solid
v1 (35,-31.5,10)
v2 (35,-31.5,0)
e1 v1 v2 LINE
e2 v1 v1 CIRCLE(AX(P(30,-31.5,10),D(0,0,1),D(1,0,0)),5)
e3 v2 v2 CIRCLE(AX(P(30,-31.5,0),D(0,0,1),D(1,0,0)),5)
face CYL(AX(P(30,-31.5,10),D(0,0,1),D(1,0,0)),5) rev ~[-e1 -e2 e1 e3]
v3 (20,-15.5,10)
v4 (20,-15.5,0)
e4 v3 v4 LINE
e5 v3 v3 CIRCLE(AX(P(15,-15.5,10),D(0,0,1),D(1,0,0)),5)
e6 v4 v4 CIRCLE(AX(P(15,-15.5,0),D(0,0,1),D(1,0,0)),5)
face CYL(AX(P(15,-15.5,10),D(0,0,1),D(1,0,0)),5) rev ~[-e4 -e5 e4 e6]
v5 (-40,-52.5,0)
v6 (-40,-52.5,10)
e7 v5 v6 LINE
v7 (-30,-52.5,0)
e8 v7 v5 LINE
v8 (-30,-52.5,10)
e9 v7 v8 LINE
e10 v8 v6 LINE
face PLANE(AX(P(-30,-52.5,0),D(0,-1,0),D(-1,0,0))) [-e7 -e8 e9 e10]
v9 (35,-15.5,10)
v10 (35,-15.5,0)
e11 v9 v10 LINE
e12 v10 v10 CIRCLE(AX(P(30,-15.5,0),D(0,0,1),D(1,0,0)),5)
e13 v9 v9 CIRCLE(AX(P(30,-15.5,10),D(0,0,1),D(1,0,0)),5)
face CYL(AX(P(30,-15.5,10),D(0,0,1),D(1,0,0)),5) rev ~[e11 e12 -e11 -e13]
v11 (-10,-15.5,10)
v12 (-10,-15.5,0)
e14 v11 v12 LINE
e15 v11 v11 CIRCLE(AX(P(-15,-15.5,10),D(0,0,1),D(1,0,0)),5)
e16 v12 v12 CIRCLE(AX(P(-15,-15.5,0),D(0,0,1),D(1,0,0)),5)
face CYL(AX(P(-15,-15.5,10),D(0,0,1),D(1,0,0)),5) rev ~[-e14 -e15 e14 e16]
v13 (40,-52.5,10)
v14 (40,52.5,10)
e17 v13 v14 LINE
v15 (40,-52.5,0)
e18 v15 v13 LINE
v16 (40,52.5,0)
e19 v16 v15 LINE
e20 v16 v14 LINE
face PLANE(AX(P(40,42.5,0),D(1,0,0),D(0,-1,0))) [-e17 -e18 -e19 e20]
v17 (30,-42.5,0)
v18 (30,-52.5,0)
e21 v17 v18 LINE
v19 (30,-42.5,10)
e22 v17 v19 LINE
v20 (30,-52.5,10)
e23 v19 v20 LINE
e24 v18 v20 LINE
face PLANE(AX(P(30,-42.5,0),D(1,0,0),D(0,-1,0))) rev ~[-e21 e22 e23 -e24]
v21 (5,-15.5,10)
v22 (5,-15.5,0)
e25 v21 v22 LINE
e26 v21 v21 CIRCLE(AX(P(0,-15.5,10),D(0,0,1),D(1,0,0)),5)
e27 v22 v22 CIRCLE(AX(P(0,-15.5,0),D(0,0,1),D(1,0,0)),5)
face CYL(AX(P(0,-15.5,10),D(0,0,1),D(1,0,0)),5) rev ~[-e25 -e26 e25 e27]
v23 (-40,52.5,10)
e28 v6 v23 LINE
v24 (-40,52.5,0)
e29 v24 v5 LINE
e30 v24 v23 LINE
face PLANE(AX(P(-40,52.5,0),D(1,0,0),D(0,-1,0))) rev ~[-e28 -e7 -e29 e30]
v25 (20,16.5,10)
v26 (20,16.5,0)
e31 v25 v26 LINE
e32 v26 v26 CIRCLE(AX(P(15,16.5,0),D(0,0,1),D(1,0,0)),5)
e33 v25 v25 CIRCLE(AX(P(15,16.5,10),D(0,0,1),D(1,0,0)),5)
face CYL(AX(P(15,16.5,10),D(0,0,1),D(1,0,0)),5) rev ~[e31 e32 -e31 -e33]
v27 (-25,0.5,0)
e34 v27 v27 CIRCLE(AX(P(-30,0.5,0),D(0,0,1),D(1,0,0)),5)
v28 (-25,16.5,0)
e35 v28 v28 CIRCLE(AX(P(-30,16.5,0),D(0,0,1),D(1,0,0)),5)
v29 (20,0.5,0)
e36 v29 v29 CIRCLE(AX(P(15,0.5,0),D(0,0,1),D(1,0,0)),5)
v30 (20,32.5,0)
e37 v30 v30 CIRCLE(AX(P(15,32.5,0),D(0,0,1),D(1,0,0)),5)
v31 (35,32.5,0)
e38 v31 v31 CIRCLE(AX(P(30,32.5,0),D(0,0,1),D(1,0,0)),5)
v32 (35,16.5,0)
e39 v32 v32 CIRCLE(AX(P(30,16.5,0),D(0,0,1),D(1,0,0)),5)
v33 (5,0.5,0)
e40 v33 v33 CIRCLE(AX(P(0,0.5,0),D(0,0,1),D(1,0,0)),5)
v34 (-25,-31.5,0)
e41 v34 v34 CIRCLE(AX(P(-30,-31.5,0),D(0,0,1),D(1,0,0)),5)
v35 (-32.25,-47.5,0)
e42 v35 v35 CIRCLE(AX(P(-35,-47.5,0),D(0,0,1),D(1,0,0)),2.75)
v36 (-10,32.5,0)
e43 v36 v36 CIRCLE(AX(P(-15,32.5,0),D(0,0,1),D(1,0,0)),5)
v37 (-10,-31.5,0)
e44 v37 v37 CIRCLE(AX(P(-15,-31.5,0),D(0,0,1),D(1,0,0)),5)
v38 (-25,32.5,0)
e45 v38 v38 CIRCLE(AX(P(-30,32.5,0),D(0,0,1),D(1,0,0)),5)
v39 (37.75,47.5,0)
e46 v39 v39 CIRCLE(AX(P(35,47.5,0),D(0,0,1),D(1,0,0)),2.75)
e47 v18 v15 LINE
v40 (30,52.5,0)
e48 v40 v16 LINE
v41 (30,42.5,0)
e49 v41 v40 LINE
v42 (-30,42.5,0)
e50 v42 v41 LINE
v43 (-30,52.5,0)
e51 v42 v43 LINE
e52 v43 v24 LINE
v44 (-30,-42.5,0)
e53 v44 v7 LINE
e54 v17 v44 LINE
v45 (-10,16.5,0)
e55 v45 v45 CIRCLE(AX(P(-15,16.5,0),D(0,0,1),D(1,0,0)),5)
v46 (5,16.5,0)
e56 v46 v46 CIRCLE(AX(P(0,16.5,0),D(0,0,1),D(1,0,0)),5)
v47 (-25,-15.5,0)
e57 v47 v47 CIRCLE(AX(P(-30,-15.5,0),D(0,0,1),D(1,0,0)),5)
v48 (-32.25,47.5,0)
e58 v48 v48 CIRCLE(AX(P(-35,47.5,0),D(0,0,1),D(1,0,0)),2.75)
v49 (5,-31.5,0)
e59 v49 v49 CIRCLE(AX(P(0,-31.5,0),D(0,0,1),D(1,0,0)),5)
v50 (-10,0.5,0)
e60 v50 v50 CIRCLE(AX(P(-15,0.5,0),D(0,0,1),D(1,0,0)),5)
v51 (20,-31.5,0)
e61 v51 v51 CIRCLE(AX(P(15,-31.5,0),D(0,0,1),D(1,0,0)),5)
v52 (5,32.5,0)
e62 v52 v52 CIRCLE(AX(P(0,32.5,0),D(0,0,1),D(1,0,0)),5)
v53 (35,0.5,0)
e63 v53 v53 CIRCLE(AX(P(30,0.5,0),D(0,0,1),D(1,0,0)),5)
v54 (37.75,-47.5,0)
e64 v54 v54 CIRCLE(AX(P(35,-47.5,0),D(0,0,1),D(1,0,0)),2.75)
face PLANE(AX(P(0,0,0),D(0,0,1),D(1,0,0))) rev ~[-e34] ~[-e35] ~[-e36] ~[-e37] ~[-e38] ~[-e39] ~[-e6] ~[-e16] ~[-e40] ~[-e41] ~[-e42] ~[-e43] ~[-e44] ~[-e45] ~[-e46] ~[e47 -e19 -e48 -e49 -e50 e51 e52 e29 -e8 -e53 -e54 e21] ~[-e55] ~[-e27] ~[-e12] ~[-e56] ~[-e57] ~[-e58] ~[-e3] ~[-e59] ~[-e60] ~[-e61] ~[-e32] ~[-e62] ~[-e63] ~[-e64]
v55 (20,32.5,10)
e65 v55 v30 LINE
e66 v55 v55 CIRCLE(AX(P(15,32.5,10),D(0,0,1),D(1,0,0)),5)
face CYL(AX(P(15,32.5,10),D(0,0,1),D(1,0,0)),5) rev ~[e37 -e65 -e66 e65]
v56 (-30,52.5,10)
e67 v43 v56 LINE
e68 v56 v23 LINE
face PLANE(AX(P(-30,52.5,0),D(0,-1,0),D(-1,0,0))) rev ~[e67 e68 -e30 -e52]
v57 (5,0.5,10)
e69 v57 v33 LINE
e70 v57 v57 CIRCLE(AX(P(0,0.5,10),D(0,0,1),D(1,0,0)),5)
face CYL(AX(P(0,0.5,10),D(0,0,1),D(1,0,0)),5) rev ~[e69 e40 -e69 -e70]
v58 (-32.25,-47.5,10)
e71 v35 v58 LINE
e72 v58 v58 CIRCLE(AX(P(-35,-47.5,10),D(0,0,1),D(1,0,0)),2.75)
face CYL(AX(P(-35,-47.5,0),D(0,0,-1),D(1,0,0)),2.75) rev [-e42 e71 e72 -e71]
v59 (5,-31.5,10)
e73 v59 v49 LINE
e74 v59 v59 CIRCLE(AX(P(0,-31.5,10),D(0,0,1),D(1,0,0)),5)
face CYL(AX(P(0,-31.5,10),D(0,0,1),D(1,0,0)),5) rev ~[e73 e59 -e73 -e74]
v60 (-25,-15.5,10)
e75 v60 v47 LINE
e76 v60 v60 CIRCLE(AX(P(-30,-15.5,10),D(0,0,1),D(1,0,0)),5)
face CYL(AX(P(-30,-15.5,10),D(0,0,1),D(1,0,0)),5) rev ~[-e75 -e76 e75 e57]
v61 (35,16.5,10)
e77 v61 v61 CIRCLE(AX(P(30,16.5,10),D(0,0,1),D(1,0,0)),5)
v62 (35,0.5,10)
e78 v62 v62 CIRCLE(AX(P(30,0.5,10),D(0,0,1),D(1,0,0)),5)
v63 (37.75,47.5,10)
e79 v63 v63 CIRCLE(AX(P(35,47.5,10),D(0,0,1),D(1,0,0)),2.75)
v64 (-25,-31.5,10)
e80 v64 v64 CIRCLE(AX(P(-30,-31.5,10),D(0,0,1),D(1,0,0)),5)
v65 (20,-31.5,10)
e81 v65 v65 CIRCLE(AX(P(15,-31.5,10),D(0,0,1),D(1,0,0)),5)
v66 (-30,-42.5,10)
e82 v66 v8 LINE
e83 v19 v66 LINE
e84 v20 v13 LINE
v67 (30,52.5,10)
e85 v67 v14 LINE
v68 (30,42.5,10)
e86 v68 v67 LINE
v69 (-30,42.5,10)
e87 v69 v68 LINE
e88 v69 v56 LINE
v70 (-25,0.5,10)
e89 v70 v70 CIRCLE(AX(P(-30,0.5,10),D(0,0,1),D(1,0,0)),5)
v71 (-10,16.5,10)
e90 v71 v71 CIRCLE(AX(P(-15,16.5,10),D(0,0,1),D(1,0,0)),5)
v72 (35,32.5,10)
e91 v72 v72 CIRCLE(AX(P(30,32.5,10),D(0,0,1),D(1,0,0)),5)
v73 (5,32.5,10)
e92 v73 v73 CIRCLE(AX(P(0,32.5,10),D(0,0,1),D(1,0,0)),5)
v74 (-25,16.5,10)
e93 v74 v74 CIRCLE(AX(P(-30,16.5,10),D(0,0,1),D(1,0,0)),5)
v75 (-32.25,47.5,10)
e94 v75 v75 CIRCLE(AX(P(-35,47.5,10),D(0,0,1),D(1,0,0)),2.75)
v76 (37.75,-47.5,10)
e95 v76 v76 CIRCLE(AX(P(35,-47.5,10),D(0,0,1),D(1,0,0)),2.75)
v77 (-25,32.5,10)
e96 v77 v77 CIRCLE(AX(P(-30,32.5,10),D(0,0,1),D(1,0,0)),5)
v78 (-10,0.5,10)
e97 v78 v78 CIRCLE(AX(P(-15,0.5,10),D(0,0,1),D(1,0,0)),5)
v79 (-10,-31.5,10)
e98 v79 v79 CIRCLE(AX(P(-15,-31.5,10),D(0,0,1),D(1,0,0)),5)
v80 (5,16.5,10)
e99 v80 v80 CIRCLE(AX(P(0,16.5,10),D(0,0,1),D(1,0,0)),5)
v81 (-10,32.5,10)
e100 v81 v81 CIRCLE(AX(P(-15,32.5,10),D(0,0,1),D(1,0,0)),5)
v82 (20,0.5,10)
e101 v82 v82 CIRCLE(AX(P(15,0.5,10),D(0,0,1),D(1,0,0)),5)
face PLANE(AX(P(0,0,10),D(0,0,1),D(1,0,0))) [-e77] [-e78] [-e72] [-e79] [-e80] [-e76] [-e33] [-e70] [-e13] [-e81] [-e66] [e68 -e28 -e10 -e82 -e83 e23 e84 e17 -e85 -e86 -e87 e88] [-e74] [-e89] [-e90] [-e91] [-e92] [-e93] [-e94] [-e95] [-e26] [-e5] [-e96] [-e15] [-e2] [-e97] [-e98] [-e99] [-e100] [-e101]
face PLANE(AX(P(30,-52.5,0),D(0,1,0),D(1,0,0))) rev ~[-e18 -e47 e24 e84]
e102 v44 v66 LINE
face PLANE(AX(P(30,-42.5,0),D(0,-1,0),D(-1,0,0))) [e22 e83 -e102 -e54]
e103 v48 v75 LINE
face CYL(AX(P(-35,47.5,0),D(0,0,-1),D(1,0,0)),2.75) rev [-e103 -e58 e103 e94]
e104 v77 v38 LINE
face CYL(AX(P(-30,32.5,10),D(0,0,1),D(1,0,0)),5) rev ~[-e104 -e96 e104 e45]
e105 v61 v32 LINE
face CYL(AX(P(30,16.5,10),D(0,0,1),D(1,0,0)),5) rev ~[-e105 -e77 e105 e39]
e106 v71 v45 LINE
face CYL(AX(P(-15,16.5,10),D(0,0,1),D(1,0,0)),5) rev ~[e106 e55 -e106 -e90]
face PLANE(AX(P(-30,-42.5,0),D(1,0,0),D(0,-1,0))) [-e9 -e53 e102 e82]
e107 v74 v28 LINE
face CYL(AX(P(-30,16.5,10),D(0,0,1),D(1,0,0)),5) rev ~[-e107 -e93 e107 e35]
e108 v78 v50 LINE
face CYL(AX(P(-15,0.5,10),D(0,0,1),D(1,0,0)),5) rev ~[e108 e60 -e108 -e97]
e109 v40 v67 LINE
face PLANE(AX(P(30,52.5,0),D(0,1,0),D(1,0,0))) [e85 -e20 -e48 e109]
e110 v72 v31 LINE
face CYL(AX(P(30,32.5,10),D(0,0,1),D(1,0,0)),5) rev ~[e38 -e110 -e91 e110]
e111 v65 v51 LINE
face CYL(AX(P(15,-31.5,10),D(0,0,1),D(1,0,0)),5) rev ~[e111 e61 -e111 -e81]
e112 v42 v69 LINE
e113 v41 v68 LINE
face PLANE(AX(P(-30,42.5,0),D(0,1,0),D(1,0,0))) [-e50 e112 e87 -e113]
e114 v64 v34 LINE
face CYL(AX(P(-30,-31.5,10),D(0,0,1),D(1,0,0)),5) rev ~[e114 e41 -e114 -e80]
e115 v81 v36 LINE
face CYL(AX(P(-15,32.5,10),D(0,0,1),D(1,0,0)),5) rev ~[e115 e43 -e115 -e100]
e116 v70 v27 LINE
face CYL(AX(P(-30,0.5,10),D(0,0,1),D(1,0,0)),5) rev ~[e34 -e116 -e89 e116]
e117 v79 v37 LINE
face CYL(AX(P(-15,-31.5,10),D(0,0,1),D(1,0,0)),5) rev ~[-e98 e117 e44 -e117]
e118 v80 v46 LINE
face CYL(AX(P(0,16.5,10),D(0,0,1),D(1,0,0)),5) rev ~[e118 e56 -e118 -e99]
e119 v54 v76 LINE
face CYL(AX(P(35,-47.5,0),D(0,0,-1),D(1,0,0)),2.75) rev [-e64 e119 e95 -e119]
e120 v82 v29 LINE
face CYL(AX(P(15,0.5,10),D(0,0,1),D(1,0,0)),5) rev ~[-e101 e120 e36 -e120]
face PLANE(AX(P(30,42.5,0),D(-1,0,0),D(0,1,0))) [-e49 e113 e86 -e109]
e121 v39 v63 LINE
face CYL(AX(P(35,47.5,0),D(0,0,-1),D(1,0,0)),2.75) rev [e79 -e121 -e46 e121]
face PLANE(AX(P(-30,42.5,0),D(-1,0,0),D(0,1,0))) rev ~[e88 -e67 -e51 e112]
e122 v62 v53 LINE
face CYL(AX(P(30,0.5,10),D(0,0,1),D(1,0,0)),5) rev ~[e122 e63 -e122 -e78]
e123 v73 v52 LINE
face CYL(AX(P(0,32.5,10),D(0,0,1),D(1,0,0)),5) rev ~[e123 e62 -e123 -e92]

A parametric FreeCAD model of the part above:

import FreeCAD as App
import Part
import Sketcher
Q = App.Units.Quantity

doc = App.newDocument("Part")
body = doc.addObject("PartDesign::Body", "Body")

# Sketch on XY plane
sketch1 = body.newObject("Sketcher::SketchObject", "Sketch")
sketch1.AttachmentSupport = (doc.getObject("XY_Plane"), [""])
sketch1.MapMode = "FlatFace"
sketch1.addGeometry([
    Part.LineSegment(App.Vector(-40, 52.5, 0), App.Vector(-40, -52.5, 0)),  # 0
    Part.LineSegment(App.Vector(-40, -52.5, 0), App.Vector(-30, -52.5, 0)),  # 1
    Part.LineSegment(App.Vector(-30, -52.5, 0), App.Vector(-30, -42.5, 0)),  # 2
    Part.LineSegment(App.Vector(-30, -42.5, 0), App.Vector(30, -42.5, 0)),  # 3
    Part.LineSegment(App.Vector(30, -42.5, 0), App.Vector(30, -52.5, 0)),  # 4
    Part.LineSegment(App.Vector(30, -52.5, 0), App.Vector(40, -52.5, 0)),  # 5
    Part.LineSegment(App.Vector(40, -52.5, 0), App.Vector(40, 52.5, 0)),  # 6
    Part.LineSegment(App.Vector(40, 52.5, 0), App.Vector(30, 52.5, 0)),  # 7
    Part.LineSegment(App.Vector(30, 52.5, 0), App.Vector(30, 42.5, 0)),  # 8
    Part.LineSegment(App.Vector(30, 42.5, 0), App.Vector(-30, 42.5, 0)),  # 9
    Part.LineSegment(App.Vector(-30, 42.5, 0), App.Vector(-30, 52.5, 0)),  # 10
    Part.LineSegment(App.Vector(-30, 52.5, 0), App.Vector(-40, 52.5, 0)),  # 11
    Part.Circle(App.Vector(-35, 47.5, 0), App.Vector(0, 0, 1), 2.8),  # 12
    Part.Circle(App.Vector(35, 47.5, 0), App.Vector(0, 0, 1), 2.8),  # 13
    Part.Circle(App.Vector(35, -47.5, 0), App.Vector(0, 0, 1), 2.8),  # 14
    Part.Circle(App.Vector(-35, -47.5, 0), App.Vector(0, 0, 1), 2.8),  # 15
], False)
sketch1.addConstraint([
    Sketcher.Constraint("Coincident", 0, 2, 1, 1),
    Sketcher.Constraint("Coincident", 1, 2, 2, 1),
    Sketcher.Constraint("Coincident", 2, 2, 3, 1),
    Sketcher.Constraint("Coincident", 3, 2, 4, 1),
    Sketcher.Constraint("Coincident", 4, 2, 5, 1),
    Sketcher.Constraint("Coincident", 5, 2, 6, 1),
    Sketcher.Constraint("Coincident", 6, 2, 7, 1),
    Sketcher.Constraint("Coincident", 7, 2, 8, 1),
    Sketcher.Constraint("Coincident", 8, 2, 9, 1),
    Sketcher.Constraint("Coincident", 9, 2, 10, 1),
    Sketcher.Constraint("Coincident", 10, 2, 11, 1),
    Sketcher.Constraint("Coincident", 11, 2, 0, 1),
    Sketcher.Constraint("Vertical", 0),
    Sketcher.Constraint("Horizontal", 1),
    Sketcher.Constraint("Vertical", 2),
    Sketcher.Constraint("Horizontal", 3),
    Sketcher.Constraint("Vertical", 4),
    Sketcher.Constraint("Horizontal", 5),
    Sketcher.Constraint("Vertical", 6),
    Sketcher.Constraint("Horizontal", 7),
    Sketcher.Constraint("Vertical", 8),
    Sketcher.Constraint("Horizontal", 9),
    Sketcher.Constraint("Vertical", 10),
    Sketcher.Constraint("Horizontal", 11),
    Sketcher.Constraint("Equal", 12, 13),
    Sketcher.Constraint("Equal", 13, 14),
    Sketcher.Constraint("Equal", 14, 15),
    Sketcher.Constraint("Symmetric", 12, 3, 14, 3, -1, 1),
    Sketcher.Constraint("Symmetric", 13, 3, 15, 3, -1, 1),
    Sketcher.Constraint("Symmetric", 0, 2, 6, 2, -1, 1),
    Sketcher.Constraint("Symmetric", 2, 2, 8, 2, -1, 1),
    Sketcher.Constraint("Symmetric", 4, 2, 10, 2, -1, 1),
    Sketcher.Constraint("Symmetric", 12, 3, 13, 3, -2),
    Sketcher.Constraint("Symmetric", 1, 2, 4, 2, -2),
    Sketcher.Constraint("Equal", 11, 2),
    Sketcher.Constraint("Diameter", 12, Q("5.5 mm")),
    Sketcher.Constraint("DistanceX", 1, 1, 1, 2, Q("10 mm")),
    Sketcher.Constraint("DistanceY", 3, 2, 8, 2, Q("85 mm")),
    Sketcher.Constraint("DistanceX", 3, 1, 3, 2, Q("60 mm")),
    Sketcher.Constraint("DistanceX", 12, 3, -1, 1, Q("35 mm")),
    Sketcher.Constraint("DistanceY", 14, 3, 13, 3, Q("95 mm")),
])
pad1 = body.newObject("PartDesign::Pad", "Pad")
pad1.Profile = sketch1
pad1.Length = 10

# Sketch on XY plane
sketch2 = body.newObject("Sketcher::SketchObject", "Sketch001")
sketch2.AttachmentSupport = (doc.getObject("XY_Plane"), [""])
sketch2.MapMode = "FlatFace"
sketch2.AttachmentOffset = App.Placement(App.Vector(0, 0, 10), App.Rotation())
sketch2.addGeometry([
    Part.Circle(App.Vector(-30, 32, 0), App.Vector(0, 0, 1), 5),  # 0
    Part.Circle(App.Vector(-15, 32, 0), App.Vector(0, 0, 1), 5),  # 1
    Part.Circle(App.Vector(0, 32, 0), App.Vector(0, 0, 1), 5),  # 2
    Part.Circle(App.Vector(15, 32, 0), App.Vector(0, 0, 1), 5),  # 3
    Part.Circle(App.Vector(30, 32, 0), App.Vector(0, 0, 1), 5),  # 4
    Part.Circle(App.Vector(-30, 16, 0), App.Vector(0, 0, 1), 5),  # 5
    Part.Circle(App.Vector(-15, 16, 0), App.Vector(0, 0, 1), 5),  # 6
    Part.Circle(App.Vector(0, 16, 0), App.Vector(0, 0, 1), 5),  # 7
    Part.Circle(App.Vector(15, 16, 0), App.Vector(0, 0, 1), 5),  # 8
    Part.Circle(App.Vector(30, 16, 0), App.Vector(0, 0, 1), 5),  # 9
    Part.Circle(App.Vector(-30, 0, 0), App.Vector(0, 0, 1), 5),  # 10
    Part.Circle(App.Vector(-15, 0, 0), App.Vector(0, 0, 1), 5),  # 11
    Part.Circle(App.Vector(0, 0, 0), App.Vector(0, 0, 1), 5),  # 12
    Part.Circle(App.Vector(15, 0, 0), App.Vector(0, 0, 1), 5),  # 13
    Part.Circle(App.Vector(30, 0, 0), App.Vector(0, 0, 1), 5),  # 14
    Part.Circle(App.Vector(-30, -16, 0), App.Vector(0, 0, 1), 5),  # 15
    Part.Circle(App.Vector(-15, -16, 0), App.Vector(0, 0, 1), 5),  # 16
    Part.Circle(App.Vector(0, -16, 0), App.Vector(0, 0, 1), 5),  # 17
    Part.Circle(App.Vector(15, -16, 0), App.Vector(0, 0, 1), 5),  # 18
    Part.Circle(App.Vector(30, -16, 0), App.Vector(0, 0, 1), 5),  # 19
    Part.Circle(App.Vector(-30, -32, 0), App.Vector(0, 0, 1), 5),  # 20
    Part.Circle(App.Vector(-15, -32, 0), App.Vector(0, 0, 1), 5),  # 21
    Part.Circle(App.Vector(0, -32, 0), App.Vector(0, 0, 1), 5),  # 22
    Part.Circle(App.Vector(15, -32, 0), App.Vector(0, 0, 1), 5),  # 23
    Part.Circle(App.Vector(30, -32, 0), App.Vector(0, 0, 1), 5),  # 24
], False)
sketch2.addConstraint([
    Sketcher.Constraint("Equal", 0, 1),
    Sketcher.Constraint("Equal", 1, 2),
    Sketcher.Constraint("Equal", 2, 3),
    Sketcher.Constraint("Equal", 3, 4),
    Sketcher.Constraint("Equal", 4, 5),
    Sketcher.Constraint("Equal", 5, 6),
    Sketcher.Constraint("Equal", 6, 7),
    Sketcher.Constraint("Equal", 7, 8),
    Sketcher.Constraint("Equal", 8, 9),
    Sketcher.Constraint("Equal", 9, 10),
    Sketcher.Constraint("Equal", 10, 11),
    Sketcher.Constraint("Equal", 11, 12),
    Sketcher.Constraint("Equal", 12, 13),
    Sketcher.Constraint("Equal", 13, 14),
    Sketcher.Constraint("Equal", 14, 15),
    Sketcher.Constraint("Equal", 15, 16),
    Sketcher.Constraint("Equal", 16, 17),
    Sketcher.Constraint("Equal", 17, 18),
    Sketcher.Constraint("Equal", 18, 19),
    Sketcher.Constraint("Equal", 19, 20),
    Sketcher.Constraint("Equal", 20, 21),
    Sketcher.Constraint("Equal", 21, 22),
    Sketcher.Constraint("Equal", 22, 23),
    Sketcher.Constraint("Equal", 23, 24),
    Sketcher.Constraint("Symmetric", 1, 3, 3, 3, -2),
    Sketcher.Constraint("Symmetric", 0, 3, 4, 3, -2),
    Sketcher.Constraint("Symmetric", 6, 3, 8, 3, -2),
    Sketcher.Constraint("Symmetric", 5, 3, 9, 3, -2),
    Sketcher.Constraint("Symmetric", 11, 3, 13, 3, -2),
    Sketcher.Constraint("Symmetric", 10, 3, 14, 3, -2),
    Sketcher.Constraint("Symmetric", 16, 3, 18, 3, -2),
    Sketcher.Constraint("Symmetric", 15, 3, 19, 3, -2),
    Sketcher.Constraint("Symmetric", 21, 3, 23, 3, -2),
    Sketcher.Constraint("Symmetric", 20, 3, 24, 3, -2),
    Sketcher.Constraint("PointOnObject", 2, 3, -2),
    Sketcher.Constraint("PointOnObject", 7, 3, -2),
    Sketcher.Constraint("PointOnObject", 12, 3, -2),
    Sketcher.Constraint("PointOnObject", 17, 3, -2),
    Sketcher.Constraint("PointOnObject", 22, 3, -2),
    Sketcher.Constraint("Horizontal", 0, 3, 1, 3),
    Sketcher.Constraint("Horizontal", 1, 3, 2, 3),
    Sketcher.Constraint("Horizontal", 5, 3, 6, 3),
    Sketcher.Constraint("Horizontal", 6, 3, 7, 3),
    Sketcher.Constraint("Horizontal", 10, 3, 11, 3),
    Sketcher.Constraint("Horizontal", 11, 3, 12, 3),
    Sketcher.Constraint("Horizontal", 15, 3, 16, 3),
    Sketcher.Constraint("Horizontal", 16, 3, 17, 3),
    Sketcher.Constraint("Horizontal", 20, 3, 21, 3),
    Sketcher.Constraint("Horizontal", 21, 3, 22, 3),
    Sketcher.Constraint("Vertical", 0, 3, 5, 3),
    Sketcher.Constraint("Vertical", 1, 3, 6, 3),
    Sketcher.Constraint("Vertical", 5, 3, 10, 3),
    Sketcher.Constraint("Vertical", 6, 3, 11, 3),
    Sketcher.Constraint("Vertical", 10, 3, 15, 3),
    Sketcher.Constraint("Vertical", 11, 3, 16, 3),
    Sketcher.Constraint("Vertical", 15, 3, 20, 3),
    Sketcher.Constraint("Vertical", 16, 3, 21, 3),
    Sketcher.Constraint("Diameter", 0, Q("10 mm")),
    Sketcher.Constraint("DistanceX", 1, 3, -1, 1, Q("15 mm")),
    Sketcher.Constraint("DistanceX", 0, 3, 1, 3, Q("15 mm")),
    Sketcher.Constraint("DistanceY", 5, 3, 0, 3, Q("16 mm")),
    Sketcher.Constraint("DistanceY", 10, 3, 5, 3, Q("16 mm")),
    Sketcher.Constraint("DistanceY", 15, 3, 10, 3, Q("16 mm")),
    Sketcher.Constraint("DistanceY", 20, 3, 15, 3, Q("16 mm")),
    Sketcher.Constraint("DistanceY", -1, 1, 0, 3, Q("32.5 mm")),
])
pocket1 = body.newObject("PartDesign::Pocket", "Pocket")
pocket1.Profile = sketch2
pocket1.Length = 10

doc.recompute()
